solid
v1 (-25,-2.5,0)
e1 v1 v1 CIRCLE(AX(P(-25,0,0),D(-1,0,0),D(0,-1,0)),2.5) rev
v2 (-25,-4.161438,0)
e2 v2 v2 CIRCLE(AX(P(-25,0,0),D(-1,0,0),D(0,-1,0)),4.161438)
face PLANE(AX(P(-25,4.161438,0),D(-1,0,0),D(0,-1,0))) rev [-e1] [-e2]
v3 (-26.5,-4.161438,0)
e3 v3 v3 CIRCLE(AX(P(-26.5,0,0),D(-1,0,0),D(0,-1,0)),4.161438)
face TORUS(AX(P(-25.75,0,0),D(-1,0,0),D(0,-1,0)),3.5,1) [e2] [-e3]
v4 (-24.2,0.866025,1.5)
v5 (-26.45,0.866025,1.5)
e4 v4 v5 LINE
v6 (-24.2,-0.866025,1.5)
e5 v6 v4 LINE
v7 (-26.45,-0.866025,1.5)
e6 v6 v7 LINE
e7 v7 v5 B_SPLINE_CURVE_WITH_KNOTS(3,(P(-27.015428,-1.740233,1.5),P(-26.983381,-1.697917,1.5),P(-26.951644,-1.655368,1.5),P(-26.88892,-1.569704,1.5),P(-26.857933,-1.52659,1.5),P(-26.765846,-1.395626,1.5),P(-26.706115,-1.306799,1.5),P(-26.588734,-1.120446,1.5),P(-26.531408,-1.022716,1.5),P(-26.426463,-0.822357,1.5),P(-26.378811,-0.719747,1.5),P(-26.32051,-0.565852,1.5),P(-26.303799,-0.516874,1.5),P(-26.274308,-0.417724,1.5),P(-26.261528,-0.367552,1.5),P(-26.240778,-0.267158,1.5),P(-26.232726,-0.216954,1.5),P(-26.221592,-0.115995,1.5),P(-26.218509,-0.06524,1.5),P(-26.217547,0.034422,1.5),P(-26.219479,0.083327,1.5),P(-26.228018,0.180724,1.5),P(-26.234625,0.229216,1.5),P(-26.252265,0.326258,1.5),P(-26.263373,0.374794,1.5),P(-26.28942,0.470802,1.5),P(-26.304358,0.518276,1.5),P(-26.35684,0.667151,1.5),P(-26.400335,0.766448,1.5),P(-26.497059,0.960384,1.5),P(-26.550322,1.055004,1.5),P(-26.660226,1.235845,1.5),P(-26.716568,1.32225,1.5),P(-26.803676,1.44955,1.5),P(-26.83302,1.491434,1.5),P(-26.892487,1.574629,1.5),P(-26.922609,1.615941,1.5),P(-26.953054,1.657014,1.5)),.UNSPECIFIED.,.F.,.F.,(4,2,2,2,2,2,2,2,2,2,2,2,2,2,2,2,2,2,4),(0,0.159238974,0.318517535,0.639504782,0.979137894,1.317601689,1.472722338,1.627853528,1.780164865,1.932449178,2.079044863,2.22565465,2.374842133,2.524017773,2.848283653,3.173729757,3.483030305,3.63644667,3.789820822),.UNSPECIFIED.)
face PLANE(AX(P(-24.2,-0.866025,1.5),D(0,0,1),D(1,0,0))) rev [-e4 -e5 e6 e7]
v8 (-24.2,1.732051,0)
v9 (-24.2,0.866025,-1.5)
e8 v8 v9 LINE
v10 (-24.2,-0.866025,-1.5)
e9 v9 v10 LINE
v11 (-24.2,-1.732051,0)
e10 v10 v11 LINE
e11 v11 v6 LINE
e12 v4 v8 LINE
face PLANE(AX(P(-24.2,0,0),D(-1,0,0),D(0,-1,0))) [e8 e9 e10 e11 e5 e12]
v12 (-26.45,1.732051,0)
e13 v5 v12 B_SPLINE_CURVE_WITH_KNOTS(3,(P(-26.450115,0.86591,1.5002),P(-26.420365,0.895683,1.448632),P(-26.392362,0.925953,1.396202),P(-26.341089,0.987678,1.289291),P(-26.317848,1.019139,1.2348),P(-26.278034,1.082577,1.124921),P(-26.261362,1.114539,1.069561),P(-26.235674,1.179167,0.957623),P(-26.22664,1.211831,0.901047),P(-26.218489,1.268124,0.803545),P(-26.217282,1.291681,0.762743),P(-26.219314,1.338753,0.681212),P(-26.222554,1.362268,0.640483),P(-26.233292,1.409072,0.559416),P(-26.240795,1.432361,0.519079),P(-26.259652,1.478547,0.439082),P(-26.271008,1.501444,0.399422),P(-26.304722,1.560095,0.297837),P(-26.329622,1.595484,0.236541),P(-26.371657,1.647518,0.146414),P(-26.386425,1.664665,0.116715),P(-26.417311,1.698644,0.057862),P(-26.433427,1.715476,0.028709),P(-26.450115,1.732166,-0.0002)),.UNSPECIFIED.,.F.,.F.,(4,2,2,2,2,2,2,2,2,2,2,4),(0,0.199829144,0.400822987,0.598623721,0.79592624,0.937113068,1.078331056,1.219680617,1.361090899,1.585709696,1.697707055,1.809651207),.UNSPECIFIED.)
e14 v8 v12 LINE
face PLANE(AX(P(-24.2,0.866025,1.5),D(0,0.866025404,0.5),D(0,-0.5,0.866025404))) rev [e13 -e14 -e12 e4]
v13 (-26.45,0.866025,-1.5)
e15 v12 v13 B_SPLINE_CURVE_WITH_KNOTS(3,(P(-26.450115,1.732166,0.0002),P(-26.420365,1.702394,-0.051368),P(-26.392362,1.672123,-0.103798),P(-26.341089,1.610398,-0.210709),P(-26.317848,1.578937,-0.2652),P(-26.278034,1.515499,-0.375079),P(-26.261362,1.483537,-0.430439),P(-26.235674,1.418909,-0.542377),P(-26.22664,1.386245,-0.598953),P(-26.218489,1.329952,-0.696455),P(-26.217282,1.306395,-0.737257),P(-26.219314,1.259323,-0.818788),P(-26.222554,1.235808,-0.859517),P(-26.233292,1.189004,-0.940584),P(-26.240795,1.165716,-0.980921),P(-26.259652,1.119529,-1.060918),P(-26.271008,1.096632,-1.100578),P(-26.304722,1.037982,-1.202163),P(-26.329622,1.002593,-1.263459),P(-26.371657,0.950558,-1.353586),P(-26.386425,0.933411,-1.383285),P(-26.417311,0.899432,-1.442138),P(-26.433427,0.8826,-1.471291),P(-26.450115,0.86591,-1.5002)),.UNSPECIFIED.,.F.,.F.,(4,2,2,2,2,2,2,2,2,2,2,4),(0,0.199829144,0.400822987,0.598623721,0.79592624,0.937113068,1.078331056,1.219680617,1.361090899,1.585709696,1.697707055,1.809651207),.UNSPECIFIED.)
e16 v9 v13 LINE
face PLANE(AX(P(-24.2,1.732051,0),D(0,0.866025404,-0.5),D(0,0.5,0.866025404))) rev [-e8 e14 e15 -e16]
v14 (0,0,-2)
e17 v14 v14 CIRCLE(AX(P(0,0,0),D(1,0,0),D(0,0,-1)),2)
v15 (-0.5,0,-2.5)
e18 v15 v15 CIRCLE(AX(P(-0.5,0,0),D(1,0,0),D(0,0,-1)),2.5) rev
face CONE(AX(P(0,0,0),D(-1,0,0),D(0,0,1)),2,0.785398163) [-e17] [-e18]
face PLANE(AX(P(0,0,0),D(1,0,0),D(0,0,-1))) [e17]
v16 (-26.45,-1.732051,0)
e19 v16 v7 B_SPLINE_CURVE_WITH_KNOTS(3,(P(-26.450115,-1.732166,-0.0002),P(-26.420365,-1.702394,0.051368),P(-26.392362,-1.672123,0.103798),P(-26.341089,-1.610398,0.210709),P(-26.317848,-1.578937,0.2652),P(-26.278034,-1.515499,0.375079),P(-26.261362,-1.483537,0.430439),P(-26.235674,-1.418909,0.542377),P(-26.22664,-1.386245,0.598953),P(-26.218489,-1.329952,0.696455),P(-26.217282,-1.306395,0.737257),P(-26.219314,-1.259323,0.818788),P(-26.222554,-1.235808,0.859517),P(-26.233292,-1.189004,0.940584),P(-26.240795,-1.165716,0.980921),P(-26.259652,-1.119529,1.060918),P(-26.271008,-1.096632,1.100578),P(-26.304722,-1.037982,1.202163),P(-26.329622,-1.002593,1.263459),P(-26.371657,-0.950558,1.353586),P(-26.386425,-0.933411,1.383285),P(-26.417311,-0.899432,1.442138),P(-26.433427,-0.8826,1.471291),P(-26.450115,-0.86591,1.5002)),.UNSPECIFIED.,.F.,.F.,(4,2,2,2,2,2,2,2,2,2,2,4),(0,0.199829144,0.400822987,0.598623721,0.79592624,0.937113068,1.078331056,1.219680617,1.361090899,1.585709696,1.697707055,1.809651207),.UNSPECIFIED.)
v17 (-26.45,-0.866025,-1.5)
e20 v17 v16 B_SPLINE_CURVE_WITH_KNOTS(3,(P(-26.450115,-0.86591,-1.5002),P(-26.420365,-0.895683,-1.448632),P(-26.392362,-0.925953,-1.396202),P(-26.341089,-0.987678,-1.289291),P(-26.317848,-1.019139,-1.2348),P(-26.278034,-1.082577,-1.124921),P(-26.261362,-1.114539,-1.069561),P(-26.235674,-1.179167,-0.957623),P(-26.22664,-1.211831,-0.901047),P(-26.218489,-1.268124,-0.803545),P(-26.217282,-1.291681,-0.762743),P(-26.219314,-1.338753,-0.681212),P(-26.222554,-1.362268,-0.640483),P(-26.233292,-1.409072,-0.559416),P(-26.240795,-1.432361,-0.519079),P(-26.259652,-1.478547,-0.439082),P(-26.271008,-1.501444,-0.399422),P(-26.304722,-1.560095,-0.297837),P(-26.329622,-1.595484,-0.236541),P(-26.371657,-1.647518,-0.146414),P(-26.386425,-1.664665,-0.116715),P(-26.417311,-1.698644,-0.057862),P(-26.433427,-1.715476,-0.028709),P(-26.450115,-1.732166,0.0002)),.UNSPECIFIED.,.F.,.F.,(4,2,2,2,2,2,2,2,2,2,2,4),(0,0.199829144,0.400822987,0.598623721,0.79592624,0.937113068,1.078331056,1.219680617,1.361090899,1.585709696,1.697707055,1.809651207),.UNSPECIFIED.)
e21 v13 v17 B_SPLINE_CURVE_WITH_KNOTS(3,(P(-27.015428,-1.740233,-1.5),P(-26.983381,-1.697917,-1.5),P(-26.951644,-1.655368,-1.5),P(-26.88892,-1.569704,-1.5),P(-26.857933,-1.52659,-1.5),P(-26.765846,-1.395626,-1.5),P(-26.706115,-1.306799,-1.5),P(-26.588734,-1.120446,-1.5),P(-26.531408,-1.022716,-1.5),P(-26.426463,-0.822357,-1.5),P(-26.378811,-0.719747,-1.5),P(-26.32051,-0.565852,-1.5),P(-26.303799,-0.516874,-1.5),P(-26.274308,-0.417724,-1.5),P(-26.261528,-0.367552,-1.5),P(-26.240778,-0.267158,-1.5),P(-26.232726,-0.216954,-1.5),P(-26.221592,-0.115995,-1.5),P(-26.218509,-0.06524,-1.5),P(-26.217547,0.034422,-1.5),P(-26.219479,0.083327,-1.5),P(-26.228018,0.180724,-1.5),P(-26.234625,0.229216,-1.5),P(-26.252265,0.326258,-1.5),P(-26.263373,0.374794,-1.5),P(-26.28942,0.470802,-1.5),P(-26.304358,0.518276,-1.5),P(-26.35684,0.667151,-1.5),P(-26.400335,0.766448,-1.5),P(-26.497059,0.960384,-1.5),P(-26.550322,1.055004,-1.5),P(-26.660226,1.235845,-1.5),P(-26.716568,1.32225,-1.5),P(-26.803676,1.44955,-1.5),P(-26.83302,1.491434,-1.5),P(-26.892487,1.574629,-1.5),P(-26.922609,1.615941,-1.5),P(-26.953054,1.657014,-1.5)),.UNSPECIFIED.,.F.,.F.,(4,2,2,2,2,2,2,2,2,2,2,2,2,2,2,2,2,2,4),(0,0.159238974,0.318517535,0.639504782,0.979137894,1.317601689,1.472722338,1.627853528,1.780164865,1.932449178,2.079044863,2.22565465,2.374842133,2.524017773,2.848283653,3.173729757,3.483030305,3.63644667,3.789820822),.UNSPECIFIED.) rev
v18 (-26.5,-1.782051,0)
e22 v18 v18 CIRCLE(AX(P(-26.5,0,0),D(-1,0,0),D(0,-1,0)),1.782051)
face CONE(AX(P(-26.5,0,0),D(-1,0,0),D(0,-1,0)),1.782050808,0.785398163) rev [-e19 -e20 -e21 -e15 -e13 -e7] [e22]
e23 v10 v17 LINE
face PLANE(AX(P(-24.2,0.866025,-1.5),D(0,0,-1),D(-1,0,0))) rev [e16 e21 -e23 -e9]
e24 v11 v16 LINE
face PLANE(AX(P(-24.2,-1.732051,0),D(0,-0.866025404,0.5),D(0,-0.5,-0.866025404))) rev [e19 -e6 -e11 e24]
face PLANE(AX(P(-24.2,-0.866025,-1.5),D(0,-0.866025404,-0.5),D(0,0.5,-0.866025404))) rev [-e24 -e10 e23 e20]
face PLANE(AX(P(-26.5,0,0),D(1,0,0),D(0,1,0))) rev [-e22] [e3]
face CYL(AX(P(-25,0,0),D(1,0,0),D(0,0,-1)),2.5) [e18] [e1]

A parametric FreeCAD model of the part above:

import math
import FreeCAD as App
import Part
import Sketcher
from FreeCAD import Vector
Q = App.Units.Quantity


def edges_at(feature, points):
    """Names of the edges that pass closest to the given points."""
    edges = feature.Shape.Edges
    near = lambda p: min(range(len(edges)), key=lambda i: edges[i].distToShape(Part.Vertex(*p))[0])
    return sorted({f"Edge{near(p) + 1}" for p in points})

doc = App.newDocument("Part")
body = doc.addObject("PartDesign::Body", "Body")

sketch1 = doc.addObject("Sketcher::SketchObject", "Sketch")
body.addObject(sketch1)
sketch1.AttachmentSupport = (doc.YZ_Plane, [""])
sketch1.MapMode = "FlatFace"
sketch1.addGeometry(Part.Circle(Vector(0, 0, 0), Vector(0, 0, 1), 2.5), False)
sketch1.addConstraint([
    Sketcher.Constraint("Coincident", 0, 3, -1, 1),
    Sketcher.Constraint("Diameter", 0, 5.0),
])
pad1 = doc.addObject("PartDesign::Pad", "Pad")
body.addObject(pad1)
pad1.Profile = sketch1
pad1.Length = 25
pad1.Reversed = True
doc.recompute()

chamfer = doc.addObject("PartDesign::Chamfer", "Chamfer")
body.addObject(chamfer)
chamfer.Base = (pad1, edges_at(pad1, [(0, 0, 2.5)]))
chamfer.Size = 0.5

sketch2 = doc.addObject("Sketcher::SketchObject", "Sketch001")
body.addObject(sketch2)
sketch2.AttachmentSupport = (doc.XY_Plane, [""])
sketch2.MapMode = "FlatFace"
sketch2.addGeometry([
    Part.LineSegment(Vector(-26.5, 4.2, 0), Vector(-26.5, 0, 0)),
    Part.LineSegment(Vector(-26.5, 0, 0), Vector(-25, 0, 0)),
    Part.LineSegment(Vector(-25, 0, 0), Vector(-25, 4.2, 0)),
    Part.ArcOfCircle(Part.Circle(Vector(-25.8, 3.5, 0), Vector(0, 0, 1), 1), math.radians(41), math.radians(139)),
], False)
sketch2.addConstraint([
    Sketcher.Constraint("Coincident", 0, 2, 1, 1),
    Sketcher.Constraint("Coincident", 1, 2, 2, 1),
    Sketcher.Constraint("Coincident", 2, 2, 3, 1),
    Sketcher.Constraint("Coincident", 3, 2, 0, 1),
    Sketcher.Constraint("Vertical", 0),
    Sketcher.Constraint("Horizontal", 1),
    Sketcher.Constraint("Vertical", 2),
    Sketcher.Constraint("PointOnObject", 0, 2, -1),
    Sketcher.Constraint("Horizontal", 2, 2, 3, 2),
    Sketcher.Constraint("Radius", 3, 1.0),
    Sketcher.Constraint("DistanceX", 1, 1, 1, 2, 1.5),
    Sketcher.Constraint("DistanceX", 1, 2, -1, 1, 25.0),
    Sketcher.Constraint("DistanceY", -1, 1, 3, 3, 3.5),
])
revolution = doc.addObject("PartDesign::Revolution", "Revolution")
body.addObject(revolution)
revolution.Profile = sketch2
revolution.ReferenceAxis = (sketch2, ["H_Axis"])
revolution.Angle = 360

sketch3 = doc.addObject("Sketcher::SketchObject", "Sketch002")
body.addObject(sketch3)
sketch3.AttachmentSupport = (doc.YZ_Plane, [""])
sketch3.MapMode = "FlatFace"
sketch3.AttachmentOffset = App.Placement(Vector(0, 0, -26.5), App.Rotation())
sketch3.addGeometry([
    Part.LineSegment(Vector(1.7, 0, 0), Vector(0.9, -1.5, 0)),
    Part.LineSegment(Vector(0.9, -1.5, 0), Vector(-0.9, -1.5, 0)),
    Part.LineSegment(Vector(-0.9, -1.5, 0), Vector(-1.7, 0, 0)),
    Part.LineSegment(Vector(-1.7, 0, 0), Vector(-0.9, 1.5, 0)),
    Part.LineSegment(Vector(-0.9, 1.5, 0), Vector(0.9, 1.5, 0)),
    Part.LineSegment(Vector(0.9, 1.5, 0), Vector(1.7, 0, 0)),
], False)
sketch3.addConstraint([
    Sketcher.Constraint("Coincident", 0, 2, 1, 1),
    Sketcher.Constraint("Coincident", 1, 2, 2, 1),
    Sketcher.Constraint("Coincident", 2, 2, 3, 1),
    Sketcher.Constraint("Coincident", 3, 2, 4, 1),
    Sketcher.Constraint("Coincident", 4, 2, 5, 1),
    Sketcher.Constraint("Coincident", 5, 2, 0, 1),
    Sketcher.Constraint("Horizontal", 1),
    Sketcher.Constraint("Horizontal", 4),
    Sketcher.Constraint("Symmetric", 0, 2, 3, 2, -1, 1),
    Sketcher.Constraint("Symmetric", 2, 2, 5, 2, -1, 1),
    Sketcher.Constraint("PointOnObject", 2, 2, -1),
    Sketcher.Constraint("Parallel", 2, 5),
    Sketcher.Constraint("Vertical", 1, 2, 3, 2),
    Sketcher.Constraint("Angle", 0, Q("-120 deg")),
    Sketcher.Constraint("DistanceY", 1, 2, 3, 2, 3.0),
    Sketcher.Constraint("DistanceX", 1, 2, 1, 1, 1.732051),
])
pocket1 = doc.addObject("PartDesign::Pocket", "Pocket")
body.addObject(pocket1)
pocket1.Profile = sketch3
pocket1.Length = 2.3
pocket1.Reversed = True

sketch4 = doc.addObject("Sketcher::SketchObject", "Sketch003")
body.addObject(sketch4)
sketch4.AttachmentSupport = (doc.YZ_Plane, [""])
sketch4.MapMode = "FlatFace"
sketch4.AttachmentOffset = App.Placement(Vector(0, 0, -26.5), App.Rotation())
sketch4.addGeometry(Part.Circle(Vector(0, 0, 0), Vector(0, 0, 1), 1.8), False)
sketch4.addConstraint([
    Sketcher.Constraint("Coincident", 0, 3, -1, 1),
    Sketcher.Constraint("Diameter", 0, 3.564102),
])
pocket2 = doc.addObject("PartDesign::Pocket", "Pocket001")
body.addObject(pocket2)
pocket2.Profile = sketch4
pocket2.Length = 1
pocket2.Reversed = True
pocket2.TaperAngle = -45

doc.recompute()
